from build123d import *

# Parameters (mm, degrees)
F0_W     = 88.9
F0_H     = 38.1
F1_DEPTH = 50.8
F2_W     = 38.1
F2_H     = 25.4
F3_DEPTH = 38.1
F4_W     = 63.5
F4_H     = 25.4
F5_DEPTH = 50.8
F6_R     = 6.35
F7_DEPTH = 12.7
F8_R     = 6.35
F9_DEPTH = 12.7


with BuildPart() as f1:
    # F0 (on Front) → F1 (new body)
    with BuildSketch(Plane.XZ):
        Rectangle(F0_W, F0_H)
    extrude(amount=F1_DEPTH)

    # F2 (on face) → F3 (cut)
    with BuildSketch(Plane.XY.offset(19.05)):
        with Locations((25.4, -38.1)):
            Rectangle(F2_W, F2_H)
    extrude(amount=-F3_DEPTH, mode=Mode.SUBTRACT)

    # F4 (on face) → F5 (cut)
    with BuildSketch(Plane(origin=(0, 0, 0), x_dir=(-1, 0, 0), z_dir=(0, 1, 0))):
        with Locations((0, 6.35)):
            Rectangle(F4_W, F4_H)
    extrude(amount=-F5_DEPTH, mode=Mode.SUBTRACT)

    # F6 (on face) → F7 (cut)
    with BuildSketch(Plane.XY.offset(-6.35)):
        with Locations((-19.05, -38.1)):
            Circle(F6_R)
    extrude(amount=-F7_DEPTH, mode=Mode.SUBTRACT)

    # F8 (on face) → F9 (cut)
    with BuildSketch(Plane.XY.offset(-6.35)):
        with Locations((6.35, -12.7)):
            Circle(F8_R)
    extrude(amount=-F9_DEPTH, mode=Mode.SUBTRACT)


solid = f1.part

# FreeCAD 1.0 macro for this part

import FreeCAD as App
import Part
import Sketcher

V = App.Vector
Q = App.Units.Quantity

doc = App.newDocument("Part")
body = doc.addObject("PartDesign::Body", "Body")

# Sketch on XZ plane
sketch1 = doc.addObject("Sketcher::SketchObject", "Sketch")
body.addObject(sketch1)
sketch1.AttachmentSupport = (doc.XZ_Plane, [""])
sketch1.MapMode = "FlatFace"
sketch1.addGeometry([
    Part.LineSegment(V(-44, 19, 0), V(-44, -19, 0)),
    Part.LineSegment(V(-44, -19, 0), V(44, -19, 0)),
    Part.LineSegment(V(44, -19, 0), V(44, 19, 0)),
    Part.LineSegment(V(44, 19, 0), V(-44, 19, 0)),
], False)
sketch1.addConstraint([
    Sketcher.Constraint("Coincident", 0, 2, 1, 1),
    Sketcher.Constraint("Coincident", 1, 2, 2, 1),
    Sketcher.Constraint("Coincident", 2, 2, 3, 1),
    Sketcher.Constraint("Coincident", 3, 2, 0, 1),
    Sketcher.Constraint("Vertical", 0),
    Sketcher.Constraint("Horizontal", 1),
    Sketcher.Constraint("Vertical", 2),
    Sketcher.Constraint("Horizontal", 3),
    Sketcher.Constraint("Symmetric", 0, 2, 2, 2, -1, 1),
    Sketcher.Constraint("DistanceX", 1, 1, 1, 2, Q("3.5 in")),
    Sketcher.Constraint("DistanceY", 0, 2, 0, 1, Q("1.5 in")),
])
pad1 = doc.addObject("PartDesign::Pad", "Pad")
body.addObject(pad1)
pad1.Profile = sketch1
pad1.Length = Q("2 in")

# Sketch on XY plane
sketch2 = doc.addObject("Sketcher::SketchObject", "Sketch001")
body.addObject(sketch2)
sketch2.AttachmentSupport = (doc.XY_Plane, [""])
sketch2.MapMode = "FlatFace"
sketch2.AttachmentOffset = App.Placement(V(0, 0, 0.75 * 25.4), App.Rotation())
sketch2.addGeometry([
    Part.LineSegment(V(6, -25, 0), V(6, -51, 0)),
    Part.LineSegment(V(6, -51, 0), V(44, -51, 0)),
    Part.LineSegment(V(44, -51, 0), V(44, -25, 0)),
    Part.LineSegment(V(44, -25, 0), V(6, -25, 0)),
], False)
sketch2.addConstraint([
    Sketcher.Constraint("Coincident", 0, 2, 1, 1),
    Sketcher.Constraint("Coincident", 1, 2, 2, 1),
    Sketcher.Constraint("Coincident", 2, 2, 3, 1),
    Sketcher.Constraint("Coincident", 3, 2, 0, 1),
    Sketcher.Constraint("Vertical", 0),
    Sketcher.Constraint("Horizontal", 1),
    Sketcher.Constraint("Vertical", 2),
    Sketcher.Constraint("Horizontal", 3),
    Sketcher.Constraint("DistanceY", 0, 2, 0, 1, Q("1 in")),
    Sketcher.Constraint("DistanceX", 1, 1, 1, 2, Q("1.5 in")),
    Sketcher.Constraint("DistanceY", 0, 2, -1, 1, Q("2 in")),
    Sketcher.Constraint("DistanceX", -1, 1, 0, 2, Q("0.25 in")),
])
pocket1 = doc.addObject("PartDesign::Pocket", "Pocket")
body.addObject(pocket1)
pocket1.Profile = sketch2
pocket1.Length = Q("1.5 in")

# Sketch on XZ plane
sketch3 = doc.addObject("Sketcher::SketchObject", "Sketch002")
body.addObject(sketch3)
sketch3.AttachmentSupport = (doc.XZ_Plane, [""])
sketch3.MapMode = "FlatFace"
sketch3.addGeometry([
    Part.LineSegment(V(32, 19, 0), V(32, -6, 0)),
    Part.LineSegment(V(32, -6, 0), V(-32, -6, 0)),
    Part.LineSegment(V(-32, -6, 0), V(-32, 19, 0)),
    Part.LineSegment(V(-32, 19, 0), V(32, 19, 0)),
], False)
sketch3.addConstraint([
    Sketcher.Constraint("Coincident", 0, 2, 1, 1),
    Sketcher.Constraint("Coincident", 1, 2, 2, 1),
    Sketcher.Constraint("Coincident", 2, 2, 3, 1),
    Sketcher.Constraint("Coincident", 3, 2, 0, 1),
    Sketcher.Constraint("Vertical", 0),
    Sketcher.Constraint("Horizontal", 1),
    Sketcher.Constraint("Vertical", 2),
    Sketcher.Constraint("Horizontal", 3),
    Sketcher.Constraint("DistanceY", 0, 2, 0, 1, Q("1 in")),
    Sketcher.Constraint("DistanceX", 1, 2, 1, 1, Q("2.5 in")),
    Sketcher.Constraint("DistanceX", -1, 1, 0, 2, Q("1.25 in")),
    Sketcher.Constraint("DistanceY", 0, 2, -1, 1, Q("0.25 in")),
])
pocket2 = doc.addObject("PartDesign::Pocket", "Pocket001")
body.addObject(pocket2)
pocket2.Profile = sketch3
pocket2.Length = Q("2 in")
pocket2.Reversed = True

# Sketch on XY plane
sketch4 = doc.addObject("Sketcher::SketchObject", "Sketch003")
body.addObject(sketch4)
sketch4.AttachmentSupport = (doc.XY_Plane, [""])
sketch4.MapMode = "FlatFace"
sketch4.AttachmentOffset = App.Placement(V(0, 0, -0.25 * 25.4), App.Rotation())
sketch4.addGeometry(Part.Circle(V(-19, -38, 0), V(0, 0, 1), 6), False)
sketch4.addConstraint([
    Sketcher.Constraint("Diameter", 0, Q("0.5 in")),
    Sketcher.Constraint("DistanceY", 0, 3, -1, 1, Q("1.5 in")),
    Sketcher.Constraint("DistanceX", 0, 3, -1, 1, Q("0.75 in")),
])
pocket3 = doc.addObject("PartDesign::Pocket", "Pocket002")
body.addObject(pocket3)
pocket3.Profile = sketch4
pocket3.Length = Q("0.5 in")

# Sketch on XY plane
sketch5 = doc.addObject("Sketcher::SketchObject", "Sketch004")
body.addObject(sketch5)
sketch5.AttachmentSupport = (doc.XY_Plane, [""])
sketch5.MapMode = "FlatFace"
sketch5.AttachmentOffset = App.Placement(V(0, 0, -0.25 * 25.4), App.Rotation())
sketch5.addGeometry(Part.Circle(V(6, -13, 0), V(0, 0, 1), 6), False)
sketch5.addConstraint([
    Sketcher.Constraint("Diameter", 0, Q("0.5 in")),
    Sketcher.Constraint("DistanceY", 0, 3, -1, 1, Q("0.5 in")),
    Sketcher.Constraint("DistanceX", -1, 1, 0, 3, Q("0.25 in")),
])
pocket4 = doc.addObject("PartDesign::Pocket", "Pocket003")
body.addObject(pocket4)
pocket4.Profile = sketch5
pocket4.Length = Q("0.5 in")

doc.recompute()
